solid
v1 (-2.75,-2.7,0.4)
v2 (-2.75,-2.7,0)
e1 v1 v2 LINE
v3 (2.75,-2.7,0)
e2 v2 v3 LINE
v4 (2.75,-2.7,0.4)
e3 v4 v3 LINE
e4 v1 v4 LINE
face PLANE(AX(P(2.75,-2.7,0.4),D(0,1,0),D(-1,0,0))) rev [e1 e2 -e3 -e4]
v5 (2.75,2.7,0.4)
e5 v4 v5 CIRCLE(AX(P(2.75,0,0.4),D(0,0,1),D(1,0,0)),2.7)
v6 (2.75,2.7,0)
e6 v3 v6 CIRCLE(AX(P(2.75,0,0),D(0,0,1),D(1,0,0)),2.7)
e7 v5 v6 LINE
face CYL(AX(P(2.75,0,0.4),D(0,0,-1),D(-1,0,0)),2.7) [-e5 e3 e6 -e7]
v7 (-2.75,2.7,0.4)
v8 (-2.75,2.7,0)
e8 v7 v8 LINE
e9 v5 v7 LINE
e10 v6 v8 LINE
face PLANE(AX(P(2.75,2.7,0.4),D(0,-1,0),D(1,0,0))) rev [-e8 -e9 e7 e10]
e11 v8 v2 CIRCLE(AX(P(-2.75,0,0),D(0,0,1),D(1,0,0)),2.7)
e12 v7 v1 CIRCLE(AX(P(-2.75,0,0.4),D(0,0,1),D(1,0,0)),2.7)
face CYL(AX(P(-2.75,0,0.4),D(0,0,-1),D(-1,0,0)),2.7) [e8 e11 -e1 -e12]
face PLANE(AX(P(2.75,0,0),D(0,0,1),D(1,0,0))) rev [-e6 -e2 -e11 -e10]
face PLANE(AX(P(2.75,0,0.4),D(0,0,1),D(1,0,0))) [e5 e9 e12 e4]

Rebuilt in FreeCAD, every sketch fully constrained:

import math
import FreeCAD as App
import Part
import Sketcher
Q = App.Units.Quantity

doc = App.newDocument("Part")
body = doc.addObject("PartDesign::Body", "Body")

# Sketch on XY plane
sketch1 = doc.addObject("Sketcher::SketchObject", "Sketch")
body.addObject(sketch1)
sketch1.AttachmentSupport = (doc.XY_Plane, [""])
sketch1.MapMode = "FlatFace"
sketch1.addGeometry(Part.LineSegment(App.Vector(-2.75, -2.7, 0), App.Vector(2.75, -2.7, 0)), False)
sketch1.addGeometry(Part.ArcOfCircle(Part.Circle(App.Vector(2.75, 0, 0), App.Vector(0, 0, 1), 2.7), math.radians(-90), math.radians(90)), False)
sketch1.addGeometry(Part.LineSegment(App.Vector(2.75, 2.7, 0), App.Vector(-2.75, 2.7, 0)), False)
sketch1.addGeometry(Part.ArcOfCircle(Part.Circle(App.Vector(-2.75, 0, 0), App.Vector(0, 0, 1), 2.7), math.radians(90), math.radians(270)), False)
sketch1.addConstraint(Sketcher.Constraint("Tangent", 0, 2, 1, 1))
sketch1.addConstraint(Sketcher.Constraint("Tangent", 1, 2, 2, 1))
sketch1.addConstraint(Sketcher.Constraint("Tangent", 2, 2, 3, 1))
sketch1.addConstraint(Sketcher.Constraint("Tangent", 3, 2, 0, 1))
sketch1.addConstraint(Sketcher.Constraint("Horizontal", 0))
sketch1.addConstraint(Sketcher.Constraint("Horizontal", 2))
sketch1.addConstraint(Sketcher.Constraint("Symmetric", 1, 3, 3, 3, -1, 1))
sketch1.addConstraint(Sketcher.Constraint("Radius", 1, Q("2.7 mm")))
sketch1.addConstraint(Sketcher.Constraint("DistanceX", 0, 1, 0, 2, Q("5.5 mm")))
pad1 = doc.addObject("PartDesign::Pad", "Pad")
body.addObject(pad1)
pad1.Profile = sketch1
pad1.Length = 0.4

doc.recompute()
